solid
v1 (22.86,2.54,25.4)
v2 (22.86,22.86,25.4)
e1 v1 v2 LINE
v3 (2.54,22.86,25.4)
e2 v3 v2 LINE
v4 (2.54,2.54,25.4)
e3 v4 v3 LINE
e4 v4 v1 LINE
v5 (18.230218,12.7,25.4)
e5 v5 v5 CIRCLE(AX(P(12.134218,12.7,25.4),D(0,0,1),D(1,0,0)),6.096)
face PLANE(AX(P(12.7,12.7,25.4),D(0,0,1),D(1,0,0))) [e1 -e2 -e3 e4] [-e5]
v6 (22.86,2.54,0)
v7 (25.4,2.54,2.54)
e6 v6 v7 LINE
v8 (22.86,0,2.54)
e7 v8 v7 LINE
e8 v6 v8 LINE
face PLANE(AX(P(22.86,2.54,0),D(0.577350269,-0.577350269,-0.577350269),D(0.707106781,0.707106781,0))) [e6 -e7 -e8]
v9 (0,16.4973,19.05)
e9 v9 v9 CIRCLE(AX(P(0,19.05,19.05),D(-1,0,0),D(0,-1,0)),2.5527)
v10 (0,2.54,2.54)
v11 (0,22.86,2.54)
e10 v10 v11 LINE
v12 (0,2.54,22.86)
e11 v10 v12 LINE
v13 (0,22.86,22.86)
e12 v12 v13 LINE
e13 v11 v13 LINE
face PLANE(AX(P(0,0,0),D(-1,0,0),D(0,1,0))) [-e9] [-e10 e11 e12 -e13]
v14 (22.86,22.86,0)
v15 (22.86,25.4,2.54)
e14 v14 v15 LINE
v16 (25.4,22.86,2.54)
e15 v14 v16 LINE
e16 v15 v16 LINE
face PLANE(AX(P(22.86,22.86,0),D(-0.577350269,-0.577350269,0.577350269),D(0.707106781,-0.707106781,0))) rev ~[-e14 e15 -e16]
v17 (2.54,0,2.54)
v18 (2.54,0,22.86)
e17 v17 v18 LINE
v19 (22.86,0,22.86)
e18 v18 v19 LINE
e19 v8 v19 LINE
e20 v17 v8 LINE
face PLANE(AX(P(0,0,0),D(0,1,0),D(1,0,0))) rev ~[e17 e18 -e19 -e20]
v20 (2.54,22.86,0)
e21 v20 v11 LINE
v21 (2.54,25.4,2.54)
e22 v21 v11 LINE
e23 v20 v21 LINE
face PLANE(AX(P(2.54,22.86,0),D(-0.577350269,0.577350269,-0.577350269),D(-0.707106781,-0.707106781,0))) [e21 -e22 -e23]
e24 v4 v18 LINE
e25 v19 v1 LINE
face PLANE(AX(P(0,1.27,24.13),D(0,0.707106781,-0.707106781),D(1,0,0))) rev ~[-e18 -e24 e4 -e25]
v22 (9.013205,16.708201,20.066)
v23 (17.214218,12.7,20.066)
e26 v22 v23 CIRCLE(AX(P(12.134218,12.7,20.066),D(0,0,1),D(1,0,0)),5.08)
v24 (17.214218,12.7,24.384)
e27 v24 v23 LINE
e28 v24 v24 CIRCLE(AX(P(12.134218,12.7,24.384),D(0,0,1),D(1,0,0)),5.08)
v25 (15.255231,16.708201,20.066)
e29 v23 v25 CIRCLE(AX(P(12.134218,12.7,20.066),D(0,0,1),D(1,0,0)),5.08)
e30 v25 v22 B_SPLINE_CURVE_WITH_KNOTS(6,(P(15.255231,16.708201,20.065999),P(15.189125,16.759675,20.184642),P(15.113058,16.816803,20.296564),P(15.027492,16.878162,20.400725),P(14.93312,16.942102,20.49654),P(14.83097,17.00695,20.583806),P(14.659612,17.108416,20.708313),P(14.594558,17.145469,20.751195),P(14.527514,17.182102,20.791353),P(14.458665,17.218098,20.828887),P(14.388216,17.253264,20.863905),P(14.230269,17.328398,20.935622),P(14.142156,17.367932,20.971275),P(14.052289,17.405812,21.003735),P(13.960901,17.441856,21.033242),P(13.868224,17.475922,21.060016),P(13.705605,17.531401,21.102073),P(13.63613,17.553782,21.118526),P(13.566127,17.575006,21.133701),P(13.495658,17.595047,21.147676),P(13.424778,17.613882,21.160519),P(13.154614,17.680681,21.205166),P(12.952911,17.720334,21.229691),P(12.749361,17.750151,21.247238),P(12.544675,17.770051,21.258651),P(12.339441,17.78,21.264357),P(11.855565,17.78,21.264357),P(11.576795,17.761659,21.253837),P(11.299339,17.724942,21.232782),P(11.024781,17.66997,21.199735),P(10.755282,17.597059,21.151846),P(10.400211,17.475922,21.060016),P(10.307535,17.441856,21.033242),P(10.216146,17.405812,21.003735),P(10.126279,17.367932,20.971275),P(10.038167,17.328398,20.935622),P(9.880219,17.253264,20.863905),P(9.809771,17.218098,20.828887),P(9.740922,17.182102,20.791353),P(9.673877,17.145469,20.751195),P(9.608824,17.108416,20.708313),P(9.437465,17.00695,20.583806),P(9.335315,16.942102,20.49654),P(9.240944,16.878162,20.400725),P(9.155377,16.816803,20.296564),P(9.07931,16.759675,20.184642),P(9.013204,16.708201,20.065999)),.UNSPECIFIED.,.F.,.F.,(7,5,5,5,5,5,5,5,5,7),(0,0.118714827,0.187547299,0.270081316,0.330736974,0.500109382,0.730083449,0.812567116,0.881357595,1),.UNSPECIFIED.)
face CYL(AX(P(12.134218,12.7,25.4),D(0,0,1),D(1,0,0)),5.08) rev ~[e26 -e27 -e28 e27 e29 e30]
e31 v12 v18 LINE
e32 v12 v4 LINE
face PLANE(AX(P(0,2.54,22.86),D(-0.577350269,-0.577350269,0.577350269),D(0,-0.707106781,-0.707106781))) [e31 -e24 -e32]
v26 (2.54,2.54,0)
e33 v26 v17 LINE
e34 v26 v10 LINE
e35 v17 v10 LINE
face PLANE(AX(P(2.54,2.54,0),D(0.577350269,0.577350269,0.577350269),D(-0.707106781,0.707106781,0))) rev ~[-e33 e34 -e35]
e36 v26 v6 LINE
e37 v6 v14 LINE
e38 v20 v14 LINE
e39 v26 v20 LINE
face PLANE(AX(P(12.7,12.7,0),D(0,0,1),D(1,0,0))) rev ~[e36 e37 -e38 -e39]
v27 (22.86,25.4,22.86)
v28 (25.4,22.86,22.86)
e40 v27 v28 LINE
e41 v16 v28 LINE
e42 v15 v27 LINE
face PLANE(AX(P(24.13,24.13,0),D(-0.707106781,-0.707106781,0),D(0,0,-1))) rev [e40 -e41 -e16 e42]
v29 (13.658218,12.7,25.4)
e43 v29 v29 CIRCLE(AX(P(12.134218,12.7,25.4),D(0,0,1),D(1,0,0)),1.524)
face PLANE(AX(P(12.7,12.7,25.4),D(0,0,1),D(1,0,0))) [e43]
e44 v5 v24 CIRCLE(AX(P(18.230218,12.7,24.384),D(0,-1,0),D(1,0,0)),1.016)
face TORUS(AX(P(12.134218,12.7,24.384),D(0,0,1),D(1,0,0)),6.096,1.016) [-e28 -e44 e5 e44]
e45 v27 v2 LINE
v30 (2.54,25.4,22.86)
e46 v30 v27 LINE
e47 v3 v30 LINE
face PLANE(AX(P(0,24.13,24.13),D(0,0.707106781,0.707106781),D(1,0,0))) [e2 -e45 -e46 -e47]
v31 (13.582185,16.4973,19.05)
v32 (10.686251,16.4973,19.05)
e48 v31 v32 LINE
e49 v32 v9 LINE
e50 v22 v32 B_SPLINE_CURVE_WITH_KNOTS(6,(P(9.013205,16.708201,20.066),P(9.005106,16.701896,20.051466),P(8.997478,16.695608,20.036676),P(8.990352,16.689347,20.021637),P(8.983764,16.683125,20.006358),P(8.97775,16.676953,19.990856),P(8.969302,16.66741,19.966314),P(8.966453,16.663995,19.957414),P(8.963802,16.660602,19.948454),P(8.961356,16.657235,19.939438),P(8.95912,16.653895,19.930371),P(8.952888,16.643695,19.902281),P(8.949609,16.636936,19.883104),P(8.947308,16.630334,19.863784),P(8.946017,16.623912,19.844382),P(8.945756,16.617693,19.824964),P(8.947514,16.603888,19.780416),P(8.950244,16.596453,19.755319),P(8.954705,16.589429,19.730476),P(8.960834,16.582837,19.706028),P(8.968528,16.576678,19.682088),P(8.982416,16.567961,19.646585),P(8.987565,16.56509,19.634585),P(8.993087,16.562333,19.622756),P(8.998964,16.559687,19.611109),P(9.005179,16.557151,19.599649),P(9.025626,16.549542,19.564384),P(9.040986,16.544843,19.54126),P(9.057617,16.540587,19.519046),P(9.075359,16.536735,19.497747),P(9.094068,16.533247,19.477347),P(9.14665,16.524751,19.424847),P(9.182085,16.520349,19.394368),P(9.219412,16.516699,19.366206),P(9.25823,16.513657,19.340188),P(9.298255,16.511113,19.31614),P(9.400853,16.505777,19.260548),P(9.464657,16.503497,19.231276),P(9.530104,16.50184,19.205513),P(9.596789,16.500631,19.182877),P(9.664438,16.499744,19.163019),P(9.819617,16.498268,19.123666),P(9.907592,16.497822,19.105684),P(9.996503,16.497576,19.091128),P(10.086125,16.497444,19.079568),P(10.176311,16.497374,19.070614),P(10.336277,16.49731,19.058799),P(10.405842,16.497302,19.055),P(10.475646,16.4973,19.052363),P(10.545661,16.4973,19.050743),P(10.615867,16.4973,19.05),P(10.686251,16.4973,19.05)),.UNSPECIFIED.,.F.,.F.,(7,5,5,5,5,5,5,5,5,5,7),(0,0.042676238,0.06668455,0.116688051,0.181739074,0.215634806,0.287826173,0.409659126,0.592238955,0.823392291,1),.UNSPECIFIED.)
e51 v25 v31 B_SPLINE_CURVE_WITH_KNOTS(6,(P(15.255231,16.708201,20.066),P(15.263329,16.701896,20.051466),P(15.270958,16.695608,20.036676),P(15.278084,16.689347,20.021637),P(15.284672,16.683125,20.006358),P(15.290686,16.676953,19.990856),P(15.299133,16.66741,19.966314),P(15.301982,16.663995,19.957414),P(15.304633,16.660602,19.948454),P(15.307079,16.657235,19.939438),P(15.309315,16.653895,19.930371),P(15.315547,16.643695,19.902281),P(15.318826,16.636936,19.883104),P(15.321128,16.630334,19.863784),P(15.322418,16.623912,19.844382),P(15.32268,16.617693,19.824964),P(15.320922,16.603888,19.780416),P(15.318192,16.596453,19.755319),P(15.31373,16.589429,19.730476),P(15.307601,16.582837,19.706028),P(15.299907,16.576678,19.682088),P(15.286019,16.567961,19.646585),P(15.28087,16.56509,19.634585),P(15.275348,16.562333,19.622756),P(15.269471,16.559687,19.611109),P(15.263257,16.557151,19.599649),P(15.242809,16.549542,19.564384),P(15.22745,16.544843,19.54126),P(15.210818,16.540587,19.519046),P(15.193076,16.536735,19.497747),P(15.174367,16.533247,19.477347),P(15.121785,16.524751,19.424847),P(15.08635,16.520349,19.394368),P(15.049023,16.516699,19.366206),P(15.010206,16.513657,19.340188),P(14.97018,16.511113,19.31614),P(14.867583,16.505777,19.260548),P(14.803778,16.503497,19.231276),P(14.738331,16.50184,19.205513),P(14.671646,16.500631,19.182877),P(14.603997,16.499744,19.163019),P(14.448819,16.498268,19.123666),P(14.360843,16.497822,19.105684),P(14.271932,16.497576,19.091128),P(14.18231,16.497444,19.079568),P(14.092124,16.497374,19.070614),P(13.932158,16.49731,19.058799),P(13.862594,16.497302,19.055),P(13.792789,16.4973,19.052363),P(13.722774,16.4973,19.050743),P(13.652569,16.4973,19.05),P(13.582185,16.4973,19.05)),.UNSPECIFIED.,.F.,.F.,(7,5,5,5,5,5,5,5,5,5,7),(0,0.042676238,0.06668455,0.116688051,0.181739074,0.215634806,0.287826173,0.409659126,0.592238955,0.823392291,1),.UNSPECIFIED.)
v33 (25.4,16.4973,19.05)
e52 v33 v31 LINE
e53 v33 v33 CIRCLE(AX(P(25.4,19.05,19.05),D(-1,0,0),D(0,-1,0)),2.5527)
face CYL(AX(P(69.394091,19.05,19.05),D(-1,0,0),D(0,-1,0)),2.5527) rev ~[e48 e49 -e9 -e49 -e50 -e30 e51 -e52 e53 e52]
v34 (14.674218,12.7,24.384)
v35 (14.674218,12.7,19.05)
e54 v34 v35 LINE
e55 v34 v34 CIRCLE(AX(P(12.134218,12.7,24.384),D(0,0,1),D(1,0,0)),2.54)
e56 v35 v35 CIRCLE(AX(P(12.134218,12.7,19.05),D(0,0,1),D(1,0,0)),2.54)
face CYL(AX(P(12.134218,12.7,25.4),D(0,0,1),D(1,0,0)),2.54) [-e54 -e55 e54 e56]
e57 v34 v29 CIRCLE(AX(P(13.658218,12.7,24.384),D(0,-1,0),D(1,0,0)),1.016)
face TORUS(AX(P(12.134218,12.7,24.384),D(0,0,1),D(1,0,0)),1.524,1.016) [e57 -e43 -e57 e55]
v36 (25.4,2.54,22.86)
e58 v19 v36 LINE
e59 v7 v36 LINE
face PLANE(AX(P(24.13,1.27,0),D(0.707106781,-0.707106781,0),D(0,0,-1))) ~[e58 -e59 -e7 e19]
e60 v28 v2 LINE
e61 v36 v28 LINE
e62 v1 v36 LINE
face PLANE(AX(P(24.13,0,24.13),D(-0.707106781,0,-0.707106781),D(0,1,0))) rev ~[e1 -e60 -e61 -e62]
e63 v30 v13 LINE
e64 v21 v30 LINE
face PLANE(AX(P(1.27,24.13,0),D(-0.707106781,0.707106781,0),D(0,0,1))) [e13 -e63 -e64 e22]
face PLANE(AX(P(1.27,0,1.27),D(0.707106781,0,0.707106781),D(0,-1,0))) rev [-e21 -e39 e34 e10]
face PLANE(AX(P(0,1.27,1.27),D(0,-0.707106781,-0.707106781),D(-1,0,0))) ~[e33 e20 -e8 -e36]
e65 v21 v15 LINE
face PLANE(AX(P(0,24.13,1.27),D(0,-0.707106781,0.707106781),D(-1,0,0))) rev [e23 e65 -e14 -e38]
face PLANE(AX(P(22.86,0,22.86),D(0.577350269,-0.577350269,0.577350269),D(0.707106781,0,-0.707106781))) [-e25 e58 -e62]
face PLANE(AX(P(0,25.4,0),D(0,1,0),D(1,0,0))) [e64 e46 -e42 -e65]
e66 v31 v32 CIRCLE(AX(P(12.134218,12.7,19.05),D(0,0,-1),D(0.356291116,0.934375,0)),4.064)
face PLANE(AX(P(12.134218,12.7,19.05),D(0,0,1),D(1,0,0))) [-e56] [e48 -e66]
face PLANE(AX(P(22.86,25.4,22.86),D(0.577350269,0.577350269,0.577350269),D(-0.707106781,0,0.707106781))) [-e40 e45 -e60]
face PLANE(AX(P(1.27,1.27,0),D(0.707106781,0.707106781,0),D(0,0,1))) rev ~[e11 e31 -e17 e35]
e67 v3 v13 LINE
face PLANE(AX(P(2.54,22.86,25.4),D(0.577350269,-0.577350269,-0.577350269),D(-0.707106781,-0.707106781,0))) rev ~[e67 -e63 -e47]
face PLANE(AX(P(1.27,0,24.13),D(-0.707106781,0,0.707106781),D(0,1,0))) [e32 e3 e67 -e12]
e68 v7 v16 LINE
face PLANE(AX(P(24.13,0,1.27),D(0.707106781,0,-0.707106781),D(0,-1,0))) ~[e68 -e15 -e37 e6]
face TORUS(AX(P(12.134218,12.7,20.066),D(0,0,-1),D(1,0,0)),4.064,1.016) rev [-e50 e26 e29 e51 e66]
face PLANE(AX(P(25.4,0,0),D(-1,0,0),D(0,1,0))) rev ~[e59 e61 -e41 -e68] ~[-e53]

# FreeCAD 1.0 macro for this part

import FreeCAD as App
import Part
import Sketcher

V = App.Vector
Q = App.Units.Quantity


def edges_at(feature, points):
    """Names of the edges that pass closest to the given points."""
    edges = feature.Shape.Edges
    near = lambda p: min(range(len(edges)), key=lambda i: edges[i].distToShape(Part.Vertex(*p))[0])
    return sorted({f"Edge{near(p) + 1}" for p in points})


def add_polygon(sketch, points):
    """Adds a closed chain of lines whose ends are joined by coincident constraints."""
    first, n = sketch.GeometryCount, len(points)
    for a, b in zip(points, points[1:] + points[:1]):
        sketch.addGeometry(Part.LineSegment(App.Vector(*a, 0), App.Vector(*b, 0)), False)
    for i in range(n):
        sketch.addConstraint(Sketcher.Constraint("Coincident", first + i, 2, first + (i + 1) % n, 1))

doc = App.newDocument("Part")
body = doc.addObject("PartDesign::Body", "Body")

# Sketch on XY plane
sketch1 = doc.addObject("Sketcher::SketchObject", "Sketch")
body.addObject(sketch1)
sketch1.AttachmentSupport = (doc.XY_Plane, [""])
sketch1.MapMode = "FlatFace"
add_polygon(sketch1, [(0, 25), (0, 0), (25, 0), (25, 25)])  # lines 0-3
sketch1.addConstraint([
    Sketcher.Constraint("Vertical", 0),
    Sketcher.Constraint("Horizontal", 1),
    Sketcher.Constraint("Vertical", 2),
    Sketcher.Constraint("Horizontal", 3),
    Sketcher.Constraint("Coincident", 0, 2, -1, 1),
    Sketcher.Constraint("Equal", 3, 0),
    Sketcher.Constraint("DistanceX", 1, 1, 1, 2, Q("1 in")),
])
pad1 = doc.addObject("PartDesign::Pad", "Pad")
body.addObject(pad1)
pad1.Profile = sketch1
pad1.Length = Q("1 in")

# Sketch on XY plane
sketch2 = doc.addObject("Sketcher::SketchObject", "Sketch001")
body.addObject(sketch2)
sketch2.AttachmentSupport = (doc.XY_Plane, [""])
sketch2.MapMode = "FlatFace"
sketch2.AttachmentOffset = App.Placement(V(0, 0, 1 * 25.4), App.Rotation())
sketch2.addGeometry([
    Part.Circle(V(12.1, 12.7, 0), V(0, 0, 1), 5.1),
    Part.Circle(V(12.1, 12.7, 0), V(0, 0, 1), 2.5),
], False)
sketch2.addConstraint([
    Sketcher.Constraint("Coincident", 1, 3, 0, 3),
    Sketcher.Constraint("Diameter", 0, Q("0.4 in")),
    Sketcher.Constraint("Diameter", 1, Q("0.2 in")),
    Sketcher.Constraint("DistanceY", -1, 1, 0, 3, Q("0.5 in")),
    Sketcher.Constraint("DistanceX", -1, 1, 0, 3, Q("12.134218 mm")),
])
pocket1 = doc.addObject("PartDesign::Pocket", "Pocket")
body.addObject(pocket1)
pocket1.Profile = sketch2
pocket1.Length = Q("0.25 in")
doc.recompute()

fillet = doc.addObject("PartDesign::Fillet", "Fillet")
body.addObject(fillet)
fillet.Base = (pocket1, edges_at(pocket1, [
    (9.594, 12.7, 25.4),
    (17.214, 12.7, 22.225),
    (7.054, 12.7, 25.4),
    (7.054, 12.7, 19.05),
]))
fillet.Radius = Q("0.04 in")
doc.recompute()

chamfer = doc.addObject("PartDesign::Chamfer", "Chamfer")
body.addObject(chamfer)
chamfer.Base = (fillet, edges_at(fillet, [
    (25.4, 12.7, 25.4),
    (25.4, 25.4, 12.7),
    (0, 25.4, 12.7),
    (12.7, 25.4, 0),
    (12.7, 25.4, 25.4),
    (12.7, 0, 25.4),
    (0, 12.7, 25.4),
    (0, 0, 12.7),
    (25.4, 0, 12.7),
    (12.7, 0, 0),
    (0, 12.7, 0),
    (25.4, 12.7, 0),
]))
chamfer.Size = Q("0.1 in")

# Sketch on YZ plane
sketch3 = doc.addObject("Sketcher::SketchObject", "Sketch002")
body.addObject(sketch3)
sketch3.AttachmentSupport = (doc.YZ_Plane, [""])
sketch3.MapMode = "FlatFace"
sketch3.AttachmentOffset = App.Placement(V(0, 0, 1 * 25.4), App.Rotation())
sketch3.addGeometry(Part.Circle(V(19.1, 19.1, 0), V(0, 0, 1), 2.6), False)
sketch3.addConstraint([
    Sketcher.Constraint("Diameter", 0, Q("0.201 in")),
    Sketcher.Constraint("DistanceX", -1, 1, 0, 3, Q("0.75 in")),
    Sketcher.Constraint("DistanceY", -1, 1, 0, 3, Q("0.75 in")),
])
doc.recompute()
hole = doc.addObject("PartDesign::Hole", "Hole")
body.addObject(hole)
hole.Profile = sketch3
hole.ThreadType = "None"
hole.Diameter = Q("0.201 in")
hole.DepthType = "ThroughAll"

doc.recompute()
